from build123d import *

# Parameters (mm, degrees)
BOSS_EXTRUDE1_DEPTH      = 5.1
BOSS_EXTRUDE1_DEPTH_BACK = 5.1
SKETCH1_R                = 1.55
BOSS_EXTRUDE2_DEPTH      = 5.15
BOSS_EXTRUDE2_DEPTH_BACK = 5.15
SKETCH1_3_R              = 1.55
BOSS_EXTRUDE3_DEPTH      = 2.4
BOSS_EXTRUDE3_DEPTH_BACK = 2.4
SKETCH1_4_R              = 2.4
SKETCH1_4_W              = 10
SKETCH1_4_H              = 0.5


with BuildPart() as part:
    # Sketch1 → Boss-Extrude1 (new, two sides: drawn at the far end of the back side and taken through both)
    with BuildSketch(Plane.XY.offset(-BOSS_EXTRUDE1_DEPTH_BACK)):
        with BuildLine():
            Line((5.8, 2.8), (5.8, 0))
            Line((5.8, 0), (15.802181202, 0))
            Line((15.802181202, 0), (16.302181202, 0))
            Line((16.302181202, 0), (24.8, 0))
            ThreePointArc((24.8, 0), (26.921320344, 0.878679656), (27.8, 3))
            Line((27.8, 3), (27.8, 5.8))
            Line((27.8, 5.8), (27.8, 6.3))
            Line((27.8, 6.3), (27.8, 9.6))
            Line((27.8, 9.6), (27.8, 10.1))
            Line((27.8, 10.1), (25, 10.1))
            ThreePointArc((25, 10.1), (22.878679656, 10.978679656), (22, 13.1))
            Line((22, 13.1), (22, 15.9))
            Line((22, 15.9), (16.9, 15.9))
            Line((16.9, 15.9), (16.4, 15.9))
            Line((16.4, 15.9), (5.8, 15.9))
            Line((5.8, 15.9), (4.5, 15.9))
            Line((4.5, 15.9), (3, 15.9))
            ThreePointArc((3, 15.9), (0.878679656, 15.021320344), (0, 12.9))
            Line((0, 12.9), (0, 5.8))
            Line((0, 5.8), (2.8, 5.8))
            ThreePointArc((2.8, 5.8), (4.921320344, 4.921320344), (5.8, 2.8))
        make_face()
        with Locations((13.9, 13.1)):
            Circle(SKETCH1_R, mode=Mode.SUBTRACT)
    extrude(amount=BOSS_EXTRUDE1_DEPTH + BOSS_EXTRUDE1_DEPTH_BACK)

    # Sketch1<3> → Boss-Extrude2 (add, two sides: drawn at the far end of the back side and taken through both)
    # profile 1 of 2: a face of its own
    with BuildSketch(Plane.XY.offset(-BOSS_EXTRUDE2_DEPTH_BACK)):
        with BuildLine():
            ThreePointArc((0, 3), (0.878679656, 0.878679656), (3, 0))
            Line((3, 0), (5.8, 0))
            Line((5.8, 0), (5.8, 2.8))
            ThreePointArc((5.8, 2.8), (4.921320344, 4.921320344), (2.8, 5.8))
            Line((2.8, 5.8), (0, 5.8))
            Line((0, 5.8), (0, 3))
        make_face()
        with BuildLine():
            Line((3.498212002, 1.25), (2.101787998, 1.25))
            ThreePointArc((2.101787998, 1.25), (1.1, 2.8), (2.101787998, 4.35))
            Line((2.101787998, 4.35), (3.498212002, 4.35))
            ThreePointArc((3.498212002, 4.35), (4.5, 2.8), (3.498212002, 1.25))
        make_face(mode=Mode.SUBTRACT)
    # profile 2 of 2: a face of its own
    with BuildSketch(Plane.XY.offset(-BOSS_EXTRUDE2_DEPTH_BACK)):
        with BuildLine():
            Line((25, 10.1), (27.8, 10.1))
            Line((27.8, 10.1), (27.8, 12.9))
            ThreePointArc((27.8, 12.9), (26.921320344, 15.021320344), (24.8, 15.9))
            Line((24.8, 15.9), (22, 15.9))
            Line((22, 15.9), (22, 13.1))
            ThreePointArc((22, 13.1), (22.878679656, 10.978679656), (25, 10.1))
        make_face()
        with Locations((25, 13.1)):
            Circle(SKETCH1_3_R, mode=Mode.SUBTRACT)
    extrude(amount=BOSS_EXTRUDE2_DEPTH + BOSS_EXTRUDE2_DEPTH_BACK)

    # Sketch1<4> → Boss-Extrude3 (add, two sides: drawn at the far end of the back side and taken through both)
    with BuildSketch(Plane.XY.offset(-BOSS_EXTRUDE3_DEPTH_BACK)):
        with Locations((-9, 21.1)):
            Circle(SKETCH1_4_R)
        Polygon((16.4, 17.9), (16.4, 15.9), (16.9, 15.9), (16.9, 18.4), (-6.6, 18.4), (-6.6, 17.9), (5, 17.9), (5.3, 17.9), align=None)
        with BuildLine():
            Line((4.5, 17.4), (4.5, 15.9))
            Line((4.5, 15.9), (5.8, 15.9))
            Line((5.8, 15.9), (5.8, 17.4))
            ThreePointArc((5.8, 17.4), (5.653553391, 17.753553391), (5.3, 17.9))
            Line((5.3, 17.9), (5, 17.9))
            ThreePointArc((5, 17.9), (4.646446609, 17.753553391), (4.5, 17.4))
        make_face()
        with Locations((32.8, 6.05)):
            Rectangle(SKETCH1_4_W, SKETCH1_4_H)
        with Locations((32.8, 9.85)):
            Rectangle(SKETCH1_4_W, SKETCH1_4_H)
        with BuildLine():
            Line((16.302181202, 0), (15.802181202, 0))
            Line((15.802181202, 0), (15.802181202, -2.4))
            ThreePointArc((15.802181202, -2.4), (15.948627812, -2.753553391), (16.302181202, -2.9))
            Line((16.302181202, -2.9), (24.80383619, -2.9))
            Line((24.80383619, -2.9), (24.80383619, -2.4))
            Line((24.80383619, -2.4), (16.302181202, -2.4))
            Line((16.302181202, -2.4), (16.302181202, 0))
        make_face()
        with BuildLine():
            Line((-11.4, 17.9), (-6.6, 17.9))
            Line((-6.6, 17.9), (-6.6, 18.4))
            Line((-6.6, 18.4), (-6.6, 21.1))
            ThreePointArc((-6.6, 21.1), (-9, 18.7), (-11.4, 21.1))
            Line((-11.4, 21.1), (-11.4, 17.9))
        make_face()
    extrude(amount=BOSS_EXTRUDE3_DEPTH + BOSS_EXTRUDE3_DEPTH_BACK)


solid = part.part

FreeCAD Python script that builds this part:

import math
import FreeCAD as App
import Part
import Sketcher

V = App.Vector

doc = App.newDocument("Part")
params = doc.addObject("Spreadsheet::Sheet", "Params")
for row, (alias, value) in enumerate([
    ("sketch1_radius", "3 mm"),
    ("sketch1_diameter", "3.1 mm"),
    ("sketch1_width", "19 mm"),
    ("sketch1_width2", "2.8 mm"),
    ("sketch1_height", "7.1 mm"),
    ("pad1_length", "5.1 mm"),
    ("pad1_length2", "5.1 mm"),
    ("sketch2_radius", "3 mm"),
    ("sketch2_diameter", "3.1 mm"),
    ("sketch2_radius2", "1.7 mm"),
    ("sketch2_width", "2.8 mm"),
    ("pad2_length", "5.15 mm"),
    ("pad2_length2", "5.15 mm"),
    ("sketch3_radius", "2.4 mm"),
    ("sketch3_radius2", "0.5 mm"),
    ("sketch3_width", "10 mm"),
    ("sketch3_height", "2 mm"),
    ("sketch3_width2", "16.4 mm"),
    ("pad3_length", "2.4 mm"),
    ("pad3_length2", "2.4 mm"),
], start=1):
    params.set(f"A{row}", alias)
    params.set(f"B{row}", "=" + value)
    params.setAlias(f"B{row}", alias)

body = doc.addObject("PartDesign::Body", "Body")

# Sketch on XY plane
sketch1 = body.newObject("Sketcher::SketchObject", "Sketch")
sketch1.AttachmentSupport = (doc.getObject("XY_Plane"), [""])
sketch1.MapMode = "FlatFace"
sketch1.addGeometry([
    Part.LineSegment(V(5.8, 2.8, 0), V(5.8, 0, 0)),  # 0
    Part.LineSegment(V(5.8, 0, 0), V(24.8, 0, 0)),  # 1
    Part.ArcOfCircle(Part.Circle(V(24.8, 3, 0), V(0, 0, 1), 3), math.radians(-90), math.radians(0)),  # 2
    Part.LineSegment(V(27.8, 3, 0), V(27.8, 10.1, 0)),  # 3
    Part.LineSegment(V(27.8, 10.1, 0), V(25, 10.1, 0)),  # 4
    Part.ArcOfCircle(Part.Circle(V(25, 13.1, 0), V(0, 0, 1), 3), math.radians(180), math.radians(270)),  # 5
    Part.LineSegment(V(22, 13.1, 0), V(22, 15.9, 0)),  # 6
    Part.LineSegment(V(22, 15.9, 0), V(3, 15.9, 0)),  # 7
    Part.ArcOfCircle(Part.Circle(V(3, 12.9, 0), V(0, 0, 1), 3), math.radians(90), math.radians(180)),  # 8
    Part.LineSegment(V(0, 12.9, 0), V(0, 5.8, 0)),  # 9
    Part.LineSegment(V(0, 5.8, 0), V(2.8, 5.8, 0)),  # 10
    Part.ArcOfCircle(Part.Circle(V(2.8, 2.8, 0), V(0, 0, 1), 3), math.radians(0), math.radians(90)),  # 11
    Part.Circle(V(13.9, 13.1, 0), V(0, 0, 1), 1.55),  # 12
], False)
sketch1.addConstraint([
    Sketcher.Constraint("Coincident", 0, 2, 1, 1),
    Sketcher.Constraint("Tangent", 1, 2, 2, 1),
    Sketcher.Constraint("Tangent", 2, 2, 3, 1),
    Sketcher.Constraint("Coincident", 3, 2, 4, 1),
    Sketcher.Constraint("Tangent", 4, 2, 5, 2),
    Sketcher.Constraint("Tangent", 5, 1, 6, 1),
    Sketcher.Constraint("Coincident", 6, 2, 7, 1),
    Sketcher.Constraint("Tangent", 7, 2, 8, 1),
    Sketcher.Constraint("Tangent", 8, 2, 9, 1),
    Sketcher.Constraint("Coincident", 9, 2, 10, 1),
    Sketcher.Constraint("Tangent", 10, 2, 11, 2),
    Sketcher.Constraint("Tangent", 11, 1, 0, 1),
    Sketcher.Constraint("Vertical", 0),
    Sketcher.Constraint("Horizontal", 1),
    Sketcher.Constraint("Vertical", 3),
    Sketcher.Constraint("Horizontal", 4),
    Sketcher.Constraint("Vertical", 6),
    Sketcher.Constraint("Horizontal", 7),
    Sketcher.Constraint("Vertical", 9),
    Sketcher.Constraint("Horizontal", 10),
    Sketcher.Constraint("Equal", 2, 5),
    Sketcher.Constraint("Equal", 5, 8),
    Sketcher.Constraint("Equal", 8, 11),
    Sketcher.Constraint("PointOnObject", 0, 2, -1),
    Sketcher.Constraint("PointOnObject", 8, 2, -2),
    Sketcher.Constraint("Horizontal", 5, 3, 12, 3),
    Sketcher.Constraint("Equal", 1, 7),
    Sketcher.Constraint("Equal", 10, 0),
    Sketcher.Constraint("Equal", 0, 6),
    Sketcher.Constraint("Radius", 2, 3.0),
    Sketcher.Constraint("Diameter", 12, 3.1),
    Sketcher.Constraint("DistanceX", 1, 1, 1, 2, 19.0),
    Sketcher.Constraint("DistanceX", 4, 2, 4, 1, 2.8),
    Sketcher.Constraint("DistanceY", 3, 1, 3, 2, 7.1),
    Sketcher.Constraint("DistanceX", -1, 1, 12, 3, 13.9),
])
sketch1.setExpression("Constraints[29]", "Params.sketch1_radius")
sketch1.setExpression("Constraints[30]", "Params.sketch1_diameter")
sketch1.setExpression("Constraints[31]", "Params.sketch1_width")
sketch1.setExpression("Constraints[32]", "Params.sketch1_width2")
sketch1.setExpression("Constraints[33]", "Params.sketch1_height")
pad1 = body.newObject("PartDesign::Pad", "Pad")
pad1.Profile = sketch1
pad1.Type = "TwoLengths"
pad1.setExpression("Length", "Params.pad1_length")
pad1.setExpression("Length2", "Params.pad1_length2")

# Sketch on XY plane
sketch2 = body.newObject("Sketcher::SketchObject", "Sketch001")
sketch2.AttachmentSupport = (doc.getObject("XY_Plane"), [""])
sketch2.MapMode = "FlatFace"
sketch2.addGeometry([
    Part.ArcOfCircle(Part.Circle(V(3, 3, 0), V(0, 0, 1), 3), math.radians(180), math.radians(270)),  # 0
    Part.LineSegment(V(3, 0, 0), V(5.8, 0, 0)),  # 1
    Part.LineSegment(V(5.8, 0, 0), V(5.8, 2.8, 0)),  # 2
    Part.ArcOfCircle(Part.Circle(V(2.8, 2.8, 0), V(0, 0, 1), 3), math.radians(0), math.radians(90)),  # 3
    Part.LineSegment(V(2.8, 5.8, 0), V(0, 5.8, 0)),  # 4
    Part.LineSegment(V(0, 5.8, 0), V(0, 3, 0)),  # 5
    Part.ArcOfCircle(Part.Circle(V(2.8, 2.8, 0), V(0, 0, 1), 1.7), math.radians(-65.750371), math.radians(65.750371)),  # 6
    Part.LineSegment(V(3.498212, 1.25, 0), V(2.101788, 1.25, 0)),  # 7
    Part.ArcOfCircle(Part.Circle(V(2.8, 2.8, 0), V(0, 0, 1), 1.7), math.radians(114.249629), math.radians(245.750371)),  # 8
    Part.LineSegment(V(2.101788, 4.35, 0), V(3.498212, 4.35, 0)),  # 9
    Part.LineSegment(V(25, 10.1, 0), V(27.8, 10.1, 0)),  # 10
    Part.LineSegment(V(27.8, 10.1, 0), V(27.8, 12.9, 0)),  # 11
    Part.ArcOfCircle(Part.Circle(V(24.8, 12.9, 0), V(0, 0, 1), 3), math.radians(0), math.radians(90)),  # 12
    Part.LineSegment(V(24.8, 15.9, 0), V(22, 15.9, 0)),  # 13
    Part.LineSegment(V(22, 15.9, 0), V(22, 13.1, 0)),  # 14
    Part.ArcOfCircle(Part.Circle(V(25, 13.1, 0), V(0, 0, 1), 3), math.radians(180), math.radians(270)),  # 15
    Part.Circle(V(25, 13.1, 0), V(0, 0, 1), 1.55),  # 16
], False)
sketch2.addConstraint([
    Sketcher.Constraint("Tangent", 0, 2, 1, 1),
    Sketcher.Constraint("Coincident", 1, 2, 2, 1),
    Sketcher.Constraint("Tangent", 2, 2, 3, 1),
    Sketcher.Constraint("Tangent", 3, 2, 4, 1),
    Sketcher.Constraint("Coincident", 4, 2, 5, 1),
    Sketcher.Constraint("Tangent", 5, 2, 0, 1),
    Sketcher.Constraint("Coincident", 6, 1, 7, 1),
    Sketcher.Constraint("Coincident", 7, 2, 8, 2),
    Sketcher.Constraint("Coincident", 8, 1, 9, 1),
    Sketcher.Constraint("Coincident", 9, 2, 6, 2),
    Sketcher.Constraint("Coincident", 10, 2, 11, 1),
    Sketcher.Constraint("Tangent", 11, 2, 12, 1),
    Sketcher.Constraint("Tangent", 12, 2, 13, 1),
    Sketcher.Constraint("Coincident", 13, 2, 14, 1),
    Sketcher.Constraint("Tangent", 14, 2, 15, 1),
    Sketcher.Constraint("Tangent", 15, 2, 10, 1),
    Sketcher.Constraint("Horizontal", 1),
    Sketcher.Constraint("Vertical", 2),
    Sketcher.Constraint("Horizontal", 4),
    Sketcher.Constraint("Vertical", 5),
    Sketcher.Constraint("Horizontal", 7),
    Sketcher.Constraint("Horizontal", 9),
    Sketcher.Constraint("Horizontal", 10),
    Sketcher.Constraint("Vertical", 11),
    Sketcher.Constraint("Horizontal", 13),
    Sketcher.Constraint("Vertical", 14),
    Sketcher.Constraint("Coincident", 6, 3, 3, 3),
    Sketcher.Constraint("Coincident", 8, 3, 3, 3),
    Sketcher.Constraint("Coincident", 16, 3, 15, 3),
    Sketcher.Constraint("Equal", 0, 3),
    Sketcher.Constraint("Equal", 6, 8),
    Sketcher.Constraint("Equal", 3, 12),
    Sketcher.Constraint("Equal", 12, 15),
    Sketcher.Constraint("PointOnObject", 0, 2, -1),
    Sketcher.Constraint("PointOnObject", 4, 2, -2),
    Sketcher.Constraint("Vertical", 7, 2, 8, 1),
    Sketcher.Constraint("Equal", 4, 10),
    Sketcher.Constraint("Equal", 13, 2),
    Sketcher.Constraint("Equal", 5, 11),
    Sketcher.Constraint("Radius", 0, 3.0),
    Sketcher.Constraint("Diameter", 16, 3.1),
    Sketcher.Constraint("Radius", 6, 1.7),
    Sketcher.Constraint("DistanceX", 1, 1, 1, 2, 2.8),
    Sketcher.Constraint("DistanceX", -1, 1, 15, 3, 25.0),
    Sketcher.Constraint("DistanceY", -1, 1, 12, 3, 12.9),
    Sketcher.Constraint("DistanceY", -1, 1, 6, 1, 1.25),
])
sketch2.setExpression("Constraints[39]", "Params.sketch2_radius")
sketch2.setExpression("Constraints[40]", "Params.sketch2_diameter")
sketch2.setExpression("Constraints[41]", "Params.sketch2_radius2")
sketch2.setExpression("Constraints[42]", "Params.sketch2_width")
pad2 = body.newObject("PartDesign::Pad", "Pad001")
pad2.Profile = sketch2
pad2.Type = "TwoLengths"
pad2.setExpression("Length", "Params.pad2_length")
pad2.setExpression("Length2", "Params.pad2_length2")

# Sketch on XY plane
sketch3 = body.newObject("Sketcher::SketchObject", "Sketch002")
sketch3.AttachmentSupport = (doc.getObject("XY_Plane"), [""])
sketch3.MapMode = "FlatFace"
sketch3.addGeometry([
    Part.ArcOfCircle(Part.Circle(V(-9, 21.1, 0), V(0, 0, 1), 2.4), math.radians(0), math.radians(180)),  # 0
    Part.LineSegment(V(-11.4, 21.1, 0), V(-11.4, 17.9, 0)),  # 1
    Part.LineSegment(V(-11.4, 17.9, 0), V(5, 17.9, 0)),  # 2
    Part.ArcOfCircle(Part.Circle(V(5, 17.4, 0), V(0, 0, 1), 0.5), math.radians(90), math.radians(180)),  # 3
    Part.LineSegment(V(4.5, 17.4, 0), V(4.5, 15.9, 0)),  # 4
    Part.LineSegment(V(4.5, 15.9, 0), V(5.8, 15.9, 0)),  # 5
    Part.LineSegment(V(5.8, 15.9, 0), V(5.8, 17.4, 0)),  # 6
    Part.ArcOfCircle(Part.Circle(V(5.3, 17.4, 0), V(0, 0, 1), 0.5), math.radians(0), math.radians(90)),  # 7
    Part.LineSegment(V(5.3, 17.9, 0), V(16.4, 17.9, 0)),  # 8
    Part.LineSegment(V(16.4, 17.9, 0), V(16.4, 15.9, 0)),  # 9
    Part.LineSegment(V(16.4, 15.9, 0), V(16.9, 15.9, 0)),  # 10
    Part.LineSegment(V(16.9, 15.9, 0), V(16.9, 18.4, 0)),  # 11
    Part.LineSegment(V(16.9, 18.4, 0), V(-6.6, 18.4, 0)),  # 12
    Part.LineSegment(V(-6.6, 18.4, 0), V(-6.6, 21.1, 0)),  # 13
    Part.LineSegment(V(27.8, 6.3, 0), V(27.8, 5.8, 0)),  # 14
    Part.LineSegment(V(27.8, 5.8, 0), V(37.8, 5.8, 0)),  # 15
    Part.LineSegment(V(37.8, 5.8, 0), V(37.8, 6.3, 0)),  # 16
    Part.LineSegment(V(37.8, 6.3, 0), V(27.8, 6.3, 0)),  # 17
    Part.LineSegment(V(27.8, 10.1, 0), V(27.8, 9.6, 0)),  # 18
    Part.LineSegment(V(27.8, 9.6, 0), V(37.8, 9.6, 0)),  # 19
    Part.LineSegment(V(37.8, 9.6, 0), V(37.8, 10.1, 0)),  # 20
    Part.LineSegment(V(37.8, 10.1, 0), V(27.8, 10.1, 0)),  # 21
    Part.LineSegment(V(16.302181, 0, 0), V(15.802181, 0, 0)),  # 22
    Part.LineSegment(V(15.802181, 0, 0), V(15.802181, -2.4, 0)),  # 23
    Part.ArcOfCircle(Part.Circle(V(16.302181, -2.4, 0), V(0, 0, 1), 0.5), math.radians(180), math.radians(270)),  # 24
    Part.LineSegment(V(16.302181, -2.9, 0), V(24.803836, -2.9, 0)),  # 25
    Part.LineSegment(V(24.803836, -2.9, 0), V(24.803836, -2.4, 0)),  # 26
    Part.LineSegment(V(24.803836, -2.4, 0), V(16.302181, -2.4, 0)),  # 27
    Part.LineSegment(V(16.302181, -2.4, 0), V(16.302181, 0, 0)),  # 28
], False)
sketch3.addConstraint([
    Sketcher.Constraint("Tangent", 0, 2, 1, 1),
    Sketcher.Constraint("Coincident", 1, 2, 2, 1),
    Sketcher.Constraint("Tangent", 2, 2, 3, 1),
    Sketcher.Constraint("Tangent", 3, 2, 4, 1),
    Sketcher.Constraint("Coincident", 4, 2, 5, 1),
    Sketcher.Constraint("Coincident", 5, 2, 6, 1),
    Sketcher.Constraint("Tangent", 6, 2, 7, 1),
    Sketcher.Constraint("Tangent", 7, 2, 8, 1),
    Sketcher.Constraint("Coincident", 8, 2, 9, 1),
    Sketcher.Constraint("Coincident", 9, 2, 10, 1),
    Sketcher.Constraint("Coincident", 10, 2, 11, 1),
    Sketcher.Constraint("Coincident", 11, 2, 12, 1),
    Sketcher.Constraint("Coincident", 12, 2, 13, 1),
    Sketcher.Constraint("Tangent", 13, 2, 0, 1),
    Sketcher.Constraint("Coincident", 14, 2, 15, 1),
    Sketcher.Constraint("Coincident", 15, 2, 16, 1),
    Sketcher.Constraint("Coincident", 16, 2, 17, 1),
    Sketcher.Constraint("Coincident", 17, 2, 14, 1),
    Sketcher.Constraint("Coincident", 18, 2, 19, 1),
    Sketcher.Constraint("Coincident", 19, 2, 20, 1),
    Sketcher.Constraint("Coincident", 20, 2, 21, 1),
    Sketcher.Constraint("Coincident", 21, 2, 18, 1),
    Sketcher.Constraint("Coincident", 22, 2, 23, 1),
    Sketcher.Constraint("Tangent", 23, 2, 24, 1),
    Sketcher.Constraint("Tangent", 24, 2, 25, 1),
    Sketcher.Constraint("Coincident", 25, 2, 26, 1),
    Sketcher.Constraint("Coincident", 26, 2, 27, 1),
    Sketcher.Constraint("Coincident", 27, 2, 28, 1),
    Sketcher.Constraint("Coincident", 28, 2, 22, 1),
    Sketcher.Constraint("Vertical", 1),
    Sketcher.Constraint("Horizontal", 2),
    Sketcher.Constraint("Vertical", 4),
    Sketcher.Constraint("Horizontal", 5),
    Sketcher.Constraint("Vertical", 6),
    Sketcher.Constraint("Horizontal", 8),
    Sketcher.Constraint("Vertical", 9),
    Sketcher.Constraint("Horizontal", 10),
    Sketcher.Constraint("Vertical", 11),
    Sketcher.Constraint("Horizontal", 12),
    Sketcher.Constraint("Vertical", 13),
    Sketcher.Constraint("Vertical", 14),
    Sketcher.Constraint("Horizontal", 15),
    Sketcher.Constraint("Vertical", 16),
    Sketcher.Constraint("Horizontal", 17),
    Sketcher.Constraint("Vertical", 18),
    Sketcher.Constraint("Horizontal", 19),
    Sketcher.Constraint("Vertical", 20),
    Sketcher.Constraint("Horizontal", 21),
    Sketcher.Constraint("Horizontal", 22),
    Sketcher.Constraint("Vertical", 23),
    Sketcher.Constraint("Horizontal", 25),
    Sketcher.Constraint("Vertical", 26),
    Sketcher.Constraint("Horizontal", 27),
    Sketcher.Constraint("Vertical", 28),
    Sketcher.Constraint("Coincident", 27, 2, 24, 3),
    Sketcher.Constraint("Equal", 3, 7),
    Sketcher.Constraint("Equal", 7, 24),
    Sketcher.Constraint("PointOnObject", 22, 2, -1),
    Sketcher.Constraint("Horizontal", 3, 3, 7, 3),
    Sketcher.Constraint("Horizontal", 5, 2, 9, 2),
    Sketcher.Constraint("Vertical", 17, 2, 18, 2),
    Sketcher.Constraint("Vertical", 16, 2, 19, 2),
    Sketcher.Constraint("Equal", 10, 22),
    Sketcher.Constraint("Equal", 22, 14),
    Sketcher.Constraint("Equal", 16, 18),
    Sketcher.Constraint("Radius", 0, 2.4),
    Sketcher.Constraint("Radius", 3, 0.5),
    Sketcher.Constraint("DistanceX", 15, 1, 15, 2, 10.0),
    Sketcher.Constraint("DistanceY", 9, 2, 9, 1, 2.0),
    Sketcher.Constraint("DistanceX", 2, 1, 2, 2, 16.4),
    Sketcher.Constraint("DistanceX", 5, 1, 5, 2, 1.3),
    Sketcher.Constraint("DistanceX", 8, 1, 8, 2, 11.1),
    Sketcher.Constraint("DistanceY", 1, 2, 1, 1, 3.2),
    Sketcher.Constraint("DistanceY", 11, 1, 11, 2, 2.5),
    Sketcher.Constraint("DistanceY", 23, 2, 23, 1, 2.4),
    Sketcher.Constraint("DistanceX", 0, 3, -1, 1, 9.0),
    Sketcher.Constraint("DistanceY", 23, 2, 18, 2, 12.0),
    Sketcher.Constraint("DistanceY", -1, 1, 0, 3, 21.1),
    Sketcher.Constraint("DistanceX", -1, 1, 14, 2, 27.8),
    Sketcher.Constraint("DistanceY", -1, 1, 14, 2, 5.8),
    Sketcher.Constraint("DistanceX", 25, 1, 25, 2, 8.501655),
    Sketcher.Constraint("DistanceX", -1, 1, 24, 3, 16.302181),
])
sketch3.setExpression("Constraints[65]", "Params.sketch3_radius")
sketch3.setExpression("Constraints[66]", "Params.sketch3_radius2")
sketch3.setExpression("Constraints[67]", "Params.sketch3_width")
sketch3.setExpression("Constraints[68]", "Params.sketch3_height")
sketch3.setExpression("Constraints[69]", "Params.sketch3_width2")
pad3 = body.newObject("PartDesign::Pad", "Pad002")
pad3.Profile = sketch3
pad3.Type = "TwoLengths"
pad3.setExpression("Length", "Params.pad3_length")
pad3.setExpression("Length2", "Params.pad3_length2")

doc.recompute()
